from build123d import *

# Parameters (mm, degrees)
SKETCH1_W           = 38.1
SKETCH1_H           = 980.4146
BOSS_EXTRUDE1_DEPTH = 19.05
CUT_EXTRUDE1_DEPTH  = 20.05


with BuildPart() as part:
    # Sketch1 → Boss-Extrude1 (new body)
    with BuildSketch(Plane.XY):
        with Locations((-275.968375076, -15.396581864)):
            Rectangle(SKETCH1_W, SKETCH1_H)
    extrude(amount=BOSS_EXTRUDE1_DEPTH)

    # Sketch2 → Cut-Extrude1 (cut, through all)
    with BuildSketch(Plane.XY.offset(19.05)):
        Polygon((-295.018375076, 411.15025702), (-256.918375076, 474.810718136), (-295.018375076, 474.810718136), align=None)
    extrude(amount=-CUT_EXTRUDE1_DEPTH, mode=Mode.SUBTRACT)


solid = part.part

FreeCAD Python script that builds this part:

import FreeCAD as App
import Part
import Sketcher

V = App.Vector
Q = App.Units.Quantity


def add_polygon(sketch, points):
    """Adds a closed chain of lines whose ends are joined by coincident constraints."""
    first, n = sketch.GeometryCount, len(points)
    for a, b in zip(points, points[1:] + points[:1]):
        sketch.addGeometry(Part.LineSegment(App.Vector(*a, 0), App.Vector(*b, 0)), False)
    for i in range(n):
        sketch.addConstraint(Sketcher.Constraint("Coincident", first + i, 2, first + (i + 1) % n, 1))

doc = App.newDocument("Part")
body = doc.addObject("PartDesign::Body", "Body")

# Sketch on XY plane
sketch1 = body.newObject("Sketcher::SketchObject", "Sketch")
sketch1.AttachmentSupport = (doc.getObject("XY_Plane"), [""])
sketch1.MapMode = "FlatFace"
add_polygon(sketch1, [(-295, 475), (-295, -506), (-257, -506), (-257, 475)])  # lines 0-3
sketch1.addConstraint([
    Sketcher.Constraint("Vertical", 0),
    Sketcher.Constraint("Horizontal", 1),
    Sketcher.Constraint("Vertical", 2),
    Sketcher.Constraint("Horizontal", 3),
    Sketcher.Constraint("DistanceX", 1, 1, 1, 2, Q("1.5 in")),
    Sketcher.Constraint("DistanceY", 0, 2, 0, 1, Q("38.599 in")),
    Sketcher.Constraint("DistanceY", 0, 2, -1, 1, 505.603882),
    Sketcher.Constraint("DistanceX", 0, 2, -1, 1, 295.018375),
])
pad1 = body.newObject("PartDesign::Pad", "Pad")
pad1.Profile = sketch1
pad1.Length = Q("0.75 in")

# Sketch on XY plane
sketch2 = body.newObject("Sketcher::SketchObject", "Sketch001")
sketch2.AttachmentSupport = (doc.getObject("XY_Plane"), [""])
sketch2.MapMode = "FlatFace"
sketch2.AttachmentOffset = App.Placement(V(0, 0, 0.75 * 25.4), App.Rotation())
add_polygon(sketch2, [(-295, 411), (-257, 475), (-295, 475)])  # lines 0-2
sketch2.addConstraint([
    Sketcher.Constraint("Horizontal", 1),
    Sketcher.Constraint("Vertical", 2),
    Sketcher.Constraint("DistanceX", 1, 2, 1, 1, Q("1.5 in")),
    Sketcher.Constraint("Angle", 0, Q("59.1 deg")),
    Sketcher.Constraint("DistanceY", -1, 1, 0, 2, 474.810718),
    Sketcher.Constraint("DistanceX", 0, 2, -1, 1, 256.918375),
])
pocket1 = body.newObject("PartDesign::Pocket", "Pocket")
pocket1.Profile = sketch2
pocket1.Type = "ThroughAll"

doc.recompute()
